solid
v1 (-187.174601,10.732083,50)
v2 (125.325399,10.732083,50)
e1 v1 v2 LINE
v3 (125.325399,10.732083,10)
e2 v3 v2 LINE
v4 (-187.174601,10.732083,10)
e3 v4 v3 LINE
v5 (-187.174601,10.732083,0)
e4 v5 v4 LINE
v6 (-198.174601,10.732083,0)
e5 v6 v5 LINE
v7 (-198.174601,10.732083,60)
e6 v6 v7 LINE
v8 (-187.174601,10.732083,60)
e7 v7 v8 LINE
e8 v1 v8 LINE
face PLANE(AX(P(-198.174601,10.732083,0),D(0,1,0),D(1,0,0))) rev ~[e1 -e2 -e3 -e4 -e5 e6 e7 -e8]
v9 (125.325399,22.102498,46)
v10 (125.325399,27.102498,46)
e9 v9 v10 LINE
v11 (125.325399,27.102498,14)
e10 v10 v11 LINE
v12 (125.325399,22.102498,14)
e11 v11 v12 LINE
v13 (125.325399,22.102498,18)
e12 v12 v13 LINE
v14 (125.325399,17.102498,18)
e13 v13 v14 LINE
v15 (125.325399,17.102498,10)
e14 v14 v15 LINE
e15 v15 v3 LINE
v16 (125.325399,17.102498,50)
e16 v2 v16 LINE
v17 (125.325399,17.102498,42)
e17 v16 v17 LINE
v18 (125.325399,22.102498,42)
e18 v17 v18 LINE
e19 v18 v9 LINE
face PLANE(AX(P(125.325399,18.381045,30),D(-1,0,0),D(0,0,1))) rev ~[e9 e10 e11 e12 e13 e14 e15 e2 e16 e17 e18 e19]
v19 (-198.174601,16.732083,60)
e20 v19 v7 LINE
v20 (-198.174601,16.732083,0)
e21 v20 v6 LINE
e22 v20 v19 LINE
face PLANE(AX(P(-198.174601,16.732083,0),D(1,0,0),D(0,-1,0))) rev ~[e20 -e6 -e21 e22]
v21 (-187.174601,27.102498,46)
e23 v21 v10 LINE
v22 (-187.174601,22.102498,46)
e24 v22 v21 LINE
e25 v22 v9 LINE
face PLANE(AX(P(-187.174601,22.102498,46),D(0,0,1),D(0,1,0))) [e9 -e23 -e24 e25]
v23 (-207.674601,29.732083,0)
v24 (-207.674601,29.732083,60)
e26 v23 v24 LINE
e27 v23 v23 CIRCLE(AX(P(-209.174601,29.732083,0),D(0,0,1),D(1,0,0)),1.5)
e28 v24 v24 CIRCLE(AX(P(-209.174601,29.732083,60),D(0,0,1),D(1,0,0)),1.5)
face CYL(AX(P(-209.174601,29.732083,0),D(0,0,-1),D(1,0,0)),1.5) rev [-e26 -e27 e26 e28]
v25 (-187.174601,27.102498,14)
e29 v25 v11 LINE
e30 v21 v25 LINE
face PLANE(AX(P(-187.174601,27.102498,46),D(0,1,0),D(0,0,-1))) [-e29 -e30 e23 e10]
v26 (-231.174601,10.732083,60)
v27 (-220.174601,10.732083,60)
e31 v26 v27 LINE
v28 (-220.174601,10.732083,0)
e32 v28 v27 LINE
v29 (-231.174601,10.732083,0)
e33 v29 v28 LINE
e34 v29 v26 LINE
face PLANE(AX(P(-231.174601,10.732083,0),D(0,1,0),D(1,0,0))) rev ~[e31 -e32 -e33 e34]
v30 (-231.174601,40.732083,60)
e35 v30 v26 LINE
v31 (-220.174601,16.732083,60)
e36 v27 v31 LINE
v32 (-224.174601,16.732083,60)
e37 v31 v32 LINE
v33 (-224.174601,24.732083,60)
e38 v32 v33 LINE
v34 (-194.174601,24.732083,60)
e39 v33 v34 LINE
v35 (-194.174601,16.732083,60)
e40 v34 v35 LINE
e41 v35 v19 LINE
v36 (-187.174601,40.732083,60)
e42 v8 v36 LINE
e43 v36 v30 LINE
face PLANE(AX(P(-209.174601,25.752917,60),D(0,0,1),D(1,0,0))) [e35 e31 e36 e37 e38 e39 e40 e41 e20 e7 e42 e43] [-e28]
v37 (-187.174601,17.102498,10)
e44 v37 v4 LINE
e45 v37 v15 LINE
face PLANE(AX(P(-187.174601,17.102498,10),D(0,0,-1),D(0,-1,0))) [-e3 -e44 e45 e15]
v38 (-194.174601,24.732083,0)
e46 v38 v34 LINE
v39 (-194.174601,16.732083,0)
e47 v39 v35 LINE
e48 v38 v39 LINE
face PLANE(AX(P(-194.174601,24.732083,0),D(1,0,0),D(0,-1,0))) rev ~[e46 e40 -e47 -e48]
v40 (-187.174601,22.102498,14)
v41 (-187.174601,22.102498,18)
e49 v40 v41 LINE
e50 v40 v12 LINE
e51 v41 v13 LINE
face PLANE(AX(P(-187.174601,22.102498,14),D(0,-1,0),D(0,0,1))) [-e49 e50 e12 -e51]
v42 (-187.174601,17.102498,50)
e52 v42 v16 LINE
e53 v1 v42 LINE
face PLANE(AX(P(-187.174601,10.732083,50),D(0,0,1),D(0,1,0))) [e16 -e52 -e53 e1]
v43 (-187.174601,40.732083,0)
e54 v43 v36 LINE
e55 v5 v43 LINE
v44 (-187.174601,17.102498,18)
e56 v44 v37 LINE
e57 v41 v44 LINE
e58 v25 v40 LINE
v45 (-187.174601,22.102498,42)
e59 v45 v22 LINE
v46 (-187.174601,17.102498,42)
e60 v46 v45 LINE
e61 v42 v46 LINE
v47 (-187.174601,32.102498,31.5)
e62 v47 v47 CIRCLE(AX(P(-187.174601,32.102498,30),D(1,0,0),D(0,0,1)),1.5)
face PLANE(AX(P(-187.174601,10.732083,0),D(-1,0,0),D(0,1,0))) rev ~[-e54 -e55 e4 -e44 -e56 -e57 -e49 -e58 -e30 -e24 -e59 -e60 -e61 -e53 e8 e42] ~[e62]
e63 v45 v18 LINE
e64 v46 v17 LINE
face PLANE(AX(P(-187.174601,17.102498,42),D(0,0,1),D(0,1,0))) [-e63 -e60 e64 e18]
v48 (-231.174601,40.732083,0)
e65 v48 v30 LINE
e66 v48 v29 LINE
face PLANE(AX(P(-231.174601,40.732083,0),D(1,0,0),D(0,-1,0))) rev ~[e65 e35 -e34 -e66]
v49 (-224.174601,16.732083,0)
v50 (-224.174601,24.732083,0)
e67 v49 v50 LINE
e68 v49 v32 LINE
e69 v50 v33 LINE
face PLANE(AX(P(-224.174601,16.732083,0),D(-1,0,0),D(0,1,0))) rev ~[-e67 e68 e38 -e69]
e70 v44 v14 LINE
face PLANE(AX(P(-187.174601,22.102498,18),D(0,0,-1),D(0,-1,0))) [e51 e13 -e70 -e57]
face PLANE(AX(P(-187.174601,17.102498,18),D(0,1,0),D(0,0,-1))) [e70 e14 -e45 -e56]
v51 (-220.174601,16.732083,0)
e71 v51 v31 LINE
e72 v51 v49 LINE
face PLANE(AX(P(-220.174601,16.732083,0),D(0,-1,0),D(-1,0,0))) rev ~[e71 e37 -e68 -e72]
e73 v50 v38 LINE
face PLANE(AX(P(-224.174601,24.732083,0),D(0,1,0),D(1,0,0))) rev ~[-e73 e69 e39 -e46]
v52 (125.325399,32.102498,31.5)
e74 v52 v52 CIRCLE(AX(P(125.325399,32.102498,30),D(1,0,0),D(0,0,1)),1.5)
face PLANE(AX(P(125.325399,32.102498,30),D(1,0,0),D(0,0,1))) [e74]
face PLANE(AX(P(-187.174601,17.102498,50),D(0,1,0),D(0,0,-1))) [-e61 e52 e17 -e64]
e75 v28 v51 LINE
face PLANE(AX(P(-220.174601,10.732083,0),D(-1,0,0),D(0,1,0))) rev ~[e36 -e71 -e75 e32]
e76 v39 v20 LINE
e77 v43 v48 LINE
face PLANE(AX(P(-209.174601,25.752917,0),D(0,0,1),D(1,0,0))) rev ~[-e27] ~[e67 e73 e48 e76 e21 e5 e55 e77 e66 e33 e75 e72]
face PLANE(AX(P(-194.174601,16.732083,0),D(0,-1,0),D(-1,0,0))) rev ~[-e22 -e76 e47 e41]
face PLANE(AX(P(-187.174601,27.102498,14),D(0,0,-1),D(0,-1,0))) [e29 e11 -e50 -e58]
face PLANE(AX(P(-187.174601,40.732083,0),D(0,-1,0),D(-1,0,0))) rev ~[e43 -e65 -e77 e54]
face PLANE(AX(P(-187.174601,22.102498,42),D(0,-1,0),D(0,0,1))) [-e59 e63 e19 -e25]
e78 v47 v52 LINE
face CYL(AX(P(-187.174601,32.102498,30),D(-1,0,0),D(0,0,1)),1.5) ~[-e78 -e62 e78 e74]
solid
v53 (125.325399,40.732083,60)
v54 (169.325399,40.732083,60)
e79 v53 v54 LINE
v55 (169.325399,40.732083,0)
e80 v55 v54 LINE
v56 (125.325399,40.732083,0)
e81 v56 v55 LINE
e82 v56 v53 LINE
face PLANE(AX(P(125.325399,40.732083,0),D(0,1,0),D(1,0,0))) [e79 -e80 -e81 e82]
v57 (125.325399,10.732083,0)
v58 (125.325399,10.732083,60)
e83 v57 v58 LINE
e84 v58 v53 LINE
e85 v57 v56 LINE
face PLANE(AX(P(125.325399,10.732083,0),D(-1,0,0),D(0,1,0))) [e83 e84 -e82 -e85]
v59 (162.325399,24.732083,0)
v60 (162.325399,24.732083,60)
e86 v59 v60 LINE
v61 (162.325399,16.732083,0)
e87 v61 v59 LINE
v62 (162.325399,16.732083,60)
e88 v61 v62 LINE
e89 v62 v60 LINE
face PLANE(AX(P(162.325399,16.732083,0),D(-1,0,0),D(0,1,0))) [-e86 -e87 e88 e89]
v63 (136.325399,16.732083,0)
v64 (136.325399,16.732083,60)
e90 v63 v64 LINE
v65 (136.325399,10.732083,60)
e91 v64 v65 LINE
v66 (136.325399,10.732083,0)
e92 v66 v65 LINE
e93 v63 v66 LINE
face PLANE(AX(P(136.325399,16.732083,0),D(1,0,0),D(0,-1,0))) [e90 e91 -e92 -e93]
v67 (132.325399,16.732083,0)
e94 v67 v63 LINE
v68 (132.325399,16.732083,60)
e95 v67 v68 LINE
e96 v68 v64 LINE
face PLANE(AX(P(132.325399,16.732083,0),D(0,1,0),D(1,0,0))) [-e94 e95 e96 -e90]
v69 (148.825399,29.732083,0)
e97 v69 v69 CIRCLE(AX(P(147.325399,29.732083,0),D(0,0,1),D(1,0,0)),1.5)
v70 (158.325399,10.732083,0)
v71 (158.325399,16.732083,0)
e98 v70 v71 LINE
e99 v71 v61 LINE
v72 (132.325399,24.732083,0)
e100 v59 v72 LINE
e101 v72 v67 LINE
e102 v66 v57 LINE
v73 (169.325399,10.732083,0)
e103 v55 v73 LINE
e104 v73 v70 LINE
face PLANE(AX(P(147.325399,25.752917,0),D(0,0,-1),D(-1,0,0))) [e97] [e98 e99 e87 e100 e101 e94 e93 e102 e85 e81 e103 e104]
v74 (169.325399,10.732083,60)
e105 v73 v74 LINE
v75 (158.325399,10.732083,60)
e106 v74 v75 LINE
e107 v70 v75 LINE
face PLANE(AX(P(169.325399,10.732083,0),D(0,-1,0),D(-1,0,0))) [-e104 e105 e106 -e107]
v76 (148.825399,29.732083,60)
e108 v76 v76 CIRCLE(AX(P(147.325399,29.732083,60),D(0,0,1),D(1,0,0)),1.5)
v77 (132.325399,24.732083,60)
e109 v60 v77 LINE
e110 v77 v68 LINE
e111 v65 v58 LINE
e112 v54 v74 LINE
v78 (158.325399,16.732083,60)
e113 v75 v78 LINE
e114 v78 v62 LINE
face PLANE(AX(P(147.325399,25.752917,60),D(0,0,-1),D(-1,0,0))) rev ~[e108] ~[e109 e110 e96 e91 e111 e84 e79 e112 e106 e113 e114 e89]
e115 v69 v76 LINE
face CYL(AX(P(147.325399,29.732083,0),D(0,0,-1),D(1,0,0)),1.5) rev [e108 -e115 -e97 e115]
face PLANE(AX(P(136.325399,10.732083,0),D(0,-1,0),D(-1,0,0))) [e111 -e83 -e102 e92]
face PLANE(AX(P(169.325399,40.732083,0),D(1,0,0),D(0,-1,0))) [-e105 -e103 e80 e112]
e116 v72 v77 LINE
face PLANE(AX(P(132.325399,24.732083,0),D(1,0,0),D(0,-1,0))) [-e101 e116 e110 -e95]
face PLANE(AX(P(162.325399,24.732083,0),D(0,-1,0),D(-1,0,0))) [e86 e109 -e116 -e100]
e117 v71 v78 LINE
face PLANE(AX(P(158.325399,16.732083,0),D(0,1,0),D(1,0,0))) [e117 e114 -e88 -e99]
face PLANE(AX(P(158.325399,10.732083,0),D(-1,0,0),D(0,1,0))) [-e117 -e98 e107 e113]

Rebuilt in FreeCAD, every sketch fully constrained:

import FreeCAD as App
import Part
import Sketcher


def add_polygon(sketch, points):
    """Adds a closed chain of lines whose ends are joined by coincident constraints."""
    first, n = sketch.GeometryCount, len(points)
    for a, b in zip(points, points[1:] + points[:1]):
        sketch.addGeometry(Part.LineSegment(App.Vector(*a, 0), App.Vector(*b, 0)), False)
    for i in range(n):
        sketch.addConstraint(Sketcher.Constraint("Coincident", first + i, 2, first + (i + 1) % n, 1))

doc = App.newDocument("Part")
params = doc.addObject("Spreadsheet::Sheet", "Params")
for row, (alias, value) in enumerate([
    ("sketch1_diameter", "3 mm"),
    ("sketch1_width", "11 mm"),
    ("sketch1_width2", "4 mm"),
    ("sketch1_width3", "30 mm"),
    ("sketch1_height", "6 mm"),
    ("pad1_length", "60 mm"),
    ("sketch2_diameter", "3 mm"),
    ("sketch2_width", "5 mm"),
    ("sketch2_height", "40 mm"),
    ("sketch2_height2", "8 mm"),
    ("sketch2_height3", "4 mm"),
    ("pad2_length", "312.5 mm"),
    ("sketch3_diameter", "3 mm"),
    ("sketch3_width", "4 mm"),
    ("sketch3_width2", "30 mm"),
    ("sketch3_width3", "11 mm"),
    ("sketch3_height", "6 mm"),
    ("pad3_length", "60 mm"),
], start=1):
    params.set(f"A{row}", alias)
    params.set(f"B{row}", "=" + value)
    params.setAlias(f"B{row}", alias)

body = doc.addObject("PartDesign::Body", "Body")

# Sketch on XY plane
sketch1 = body.newObject("Sketcher::SketchObject", "Sketch")
sketch1.AttachmentSupport = (doc.getObject("XY_Plane"), [""])
sketch1.MapMode = "FlatFace"
add_polygon(sketch1, [(-231.174601, 10.732083), (-220.174601, 10.732083), (-220.174601, 16.732083), (-224.174601, 16.732083), (-224.174601, 24.732083), (-194.174601, 24.732083), (-194.174601, 16.732083), (-198.174601, 16.732083), (-198.174601, 10.732083), (-187.174601, 10.732083), (-187.174601, 40.732083), (-231.174601, 40.732083)])  # lines 0-11
sketch1.addGeometry(Part.Circle(App.Vector(-209.174601, 29.732083, 0), App.Vector(0, 0, 1), 1.5), False)  # 12
sketch1.addConstraint(Sketcher.Constraint("Horizontal", 0))
sketch1.addConstraint(Sketcher.Constraint("Vertical", 1))
sketch1.addConstraint(Sketcher.Constraint("Horizontal", 2))
sketch1.addConstraint(Sketcher.Constraint("Vertical", 3))
sketch1.addConstraint(Sketcher.Constraint("Horizontal", 4))
sketch1.addConstraint(Sketcher.Constraint("Vertical", 5))
sketch1.addConstraint(Sketcher.Constraint("Horizontal", 6))
sketch1.addConstraint(Sketcher.Constraint("Vertical", 7))
sketch1.addConstraint(Sketcher.Constraint("Horizontal", 8))
sketch1.addConstraint(Sketcher.Constraint("Vertical", 9))
sketch1.addConstraint(Sketcher.Constraint("Horizontal", 10))
sketch1.addConstraint(Sketcher.Constraint("Vertical", 11))
sketch1.addConstraint(Sketcher.Constraint("Horizontal", 2, 2, 5, 2))
sketch1.addConstraint(Sketcher.Constraint("Horizontal", 0, 2, 7, 2))
sketch1.addConstraint(Sketcher.Constraint("Equal", 2, 6))
sketch1.addConstraint(Sketcher.Constraint("Equal", 0, 8))
sketch1.addConstraint(Sketcher.Constraint("Equal", 4, 9))
sketch1.addConstraint(Sketcher.Constraint("Diameter", 12, 3.0))
sketch1.addConstraint(Sketcher.Constraint("DistanceX", 0, 1, 0, 2, 11.0))
sketch1.addConstraint(Sketcher.Constraint("DistanceX", 2, 2, 2, 1, 4.0))
sketch1.addConstraint(Sketcher.Constraint("DistanceX", 4, 1, 4, 2, 30.0))
sketch1.addConstraint(Sketcher.Constraint("DistanceY", 1, 1, 1, 2, 6.0))
sketch1.addConstraint(Sketcher.Constraint("DistanceY", 3, 1, 3, 2, 8.0))
sketch1.addConstraint(Sketcher.Constraint("DistanceX", 0, 2, 12, 3, 11.0))
sketch1.addConstraint(Sketcher.Constraint("DistanceY", 0, 2, 12, 3, 19.0))
sketch1.addConstraint(Sketcher.Constraint("DistanceX", 12, 3, -1, 1, 209.174601))
sketch1.addConstraint(Sketcher.Constraint("DistanceY", -1, 1, 12, 3, 29.732083))
sketch1.setExpression("Constraints[29]", "Params.sketch1_diameter")
sketch1.setExpression("Constraints[30]", "Params.sketch1_width")
sketch1.setExpression("Constraints[31]", "Params.sketch1_width2")
sketch1.setExpression("Constraints[32]", "Params.sketch1_width3")
sketch1.setExpression("Constraints[33]", "Params.sketch1_height")
pad1 = body.newObject("PartDesign::Pad", "Pad")
pad1.Profile = sketch1
pad1.setExpression("Length", "Params.pad1_length")

# Sketch on YZ plane
sketch2 = body.newObject("Sketcher::SketchObject", "Sketch001")
sketch2.AttachmentSupport = (doc.getObject("YZ_Plane"), [""])
sketch2.MapMode = "FlatFace"
sketch2.AttachmentOffset = App.Placement(App.Vector(0, 0, -187.174601), App.Rotation())
sketch2.addGeometry(Part.Circle(App.Vector(32.102498, 30, 0), App.Vector(0, 0, 1), 1.5), False)  # 0
add_polygon(sketch2, [(10.732083, 50), (10.732083, 10), (17.102498, 10), (17.102498, 18), (22.102498, 18), (22.102498, 14), (27.102498, 14), (27.102498, 46), (22.102498, 46), (22.102498, 42), (17.102498, 42), (17.102498, 50)])  # lines 1-12
sketch2.addConstraint(Sketcher.Constraint("Vertical", 1))
sketch2.addConstraint(Sketcher.Constraint("Horizontal", 2))
sketch2.addConstraint(Sketcher.Constraint("Vertical", 3))
sketch2.addConstraint(Sketcher.Constraint("Horizontal", 4))
sketch2.addConstraint(Sketcher.Constraint("Vertical", 5))
sketch2.addConstraint(Sketcher.Constraint("Horizontal", 6))
sketch2.addConstraint(Sketcher.Constraint("Vertical", 7))
sketch2.addConstraint(Sketcher.Constraint("Horizontal", 8))
sketch2.addConstraint(Sketcher.Constraint("Vertical", 9))
sketch2.addConstraint(Sketcher.Constraint("Horizontal", 10))
sketch2.addConstraint(Sketcher.Constraint("Vertical", 11))
sketch2.addConstraint(Sketcher.Constraint("Horizontal", 12))
sketch2.addConstraint(Sketcher.Constraint("Vertical", 5, 2, 8, 2))
sketch2.addConstraint(Sketcher.Constraint("Vertical", 3, 2, 10, 2))
sketch2.addConstraint(Sketcher.Constraint("Equal", 4, 6))
sketch2.addConstraint(Sketcher.Constraint("Equal", 5, 9))
sketch2.addConstraint(Sketcher.Constraint("Equal", 3, 11))
sketch2.addConstraint(Sketcher.Constraint("Diameter", 0, 3.0))
sketch2.addConstraint(Sketcher.Constraint("DistanceX", 4, 1, 4, 2, 5.0))
sketch2.addConstraint(Sketcher.Constraint("DistanceY", 1, 2, 1, 1, 40.0))
sketch2.addConstraint(Sketcher.Constraint("DistanceY", 3, 1, 3, 2, 8.0))
sketch2.addConstraint(Sketcher.Constraint("DistanceY", 5, 2, 5, 1, 4.0))
sketch2.addConstraint(Sketcher.Constraint("DistanceY", -1, 1, 0, 3, 30.0))
sketch2.addConstraint(Sketcher.Constraint("DistanceY", -1, 1, 1, 2, 10.0))
sketch2.addConstraint(Sketcher.Constraint("DistanceX", 2, 2, 0, 3, 15.0))
sketch2.addConstraint(Sketcher.Constraint("DistanceX", -1, 1, 0, 3, 32.102498))
sketch2.addConstraint(Sketcher.Constraint("DistanceX", 2, 1, 2, 2, 6.370415))
sketch2.setExpression("Constraints[29]", "Params.sketch2_diameter")
sketch2.setExpression("Constraints[30]", "Params.sketch2_width")
sketch2.setExpression("Constraints[31]", "Params.sketch2_height")
sketch2.setExpression("Constraints[32]", "Params.sketch2_height2")
sketch2.setExpression("Constraints[33]", "Params.sketch2_height3")
pad2 = body.newObject("PartDesign::Pad", "Pad001")
pad2.Profile = sketch2
pad2.setExpression("Length", "Params.pad2_length")
body2 = doc.addObject("PartDesign::Body", "Body001")

# Sketch on XY plane
sketch3 = body2.newObject("Sketcher::SketchObject", "Sketch002")
sketch3.AttachmentSupport = (doc.getObject("XY_Plane001"), [""])
sketch3.MapMode = "FlatFace"
add_polygon(sketch3, [(136.325399, 10.732083), (136.325399, 16.732083), (132.325399, 16.732083), (132.325399, 24.732083), (162.325399, 24.732083), (162.325399, 16.732083), (158.325399, 16.732083), (158.325399, 10.732083), (169.325399, 10.732083), (169.325399, 40.732083), (125.325399, 40.732083), (125.325399, 10.732083)])  # lines 0-11
sketch3.addGeometry(Part.Circle(App.Vector(147.325399, 29.732083, 0), App.Vector(0, 0, 1), 1.5), False)  # 12
sketch3.addConstraint(Sketcher.Constraint("Vertical", 0))
sketch3.addConstraint(Sketcher.Constraint("Horizontal", 1))
sketch3.addConstraint(Sketcher.Constraint("Vertical", 2))
sketch3.addConstraint(Sketcher.Constraint("Horizontal", 3))
sketch3.addConstraint(Sketcher.Constraint("Vertical", 4))
sketch3.addConstraint(Sketcher.Constraint("Horizontal", 5))
sketch3.addConstraint(Sketcher.Constraint("Vertical", 6))
sketch3.addConstraint(Sketcher.Constraint("Horizontal", 7))
sketch3.addConstraint(Sketcher.Constraint("Vertical", 8))
sketch3.addConstraint(Sketcher.Constraint("Horizontal", 9))
sketch3.addConstraint(Sketcher.Constraint("Vertical", 10))
sketch3.addConstraint(Sketcher.Constraint("Horizontal", 11))
sketch3.addConstraint(Sketcher.Constraint("Horizontal", 1, 2, 4, 2))
sketch3.addConstraint(Sketcher.Constraint("Horizontal", 7, 2, 10, 2))
sketch3.addConstraint(Sketcher.Constraint("Equal", 1, 5))
sketch3.addConstraint(Sketcher.Constraint("Equal", 7, 11))
sketch3.addConstraint(Sketcher.Constraint("Equal", 3, 8))
sketch3.addConstraint(Sketcher.Constraint("Diameter", 12, 3.0))
sketch3.addConstraint(Sketcher.Constraint("DistanceX", 1, 2, 1, 1, 4.0))
sketch3.addConstraint(Sketcher.Constraint("DistanceX", 3, 1, 3, 2, 30.0))
sketch3.addConstraint(Sketcher.Constraint("DistanceX", 7, 1, 7, 2, 11.0))
sketch3.addConstraint(Sketcher.Constraint("DistanceY", 0, 1, 0, 2, 6.0))
sketch3.addConstraint(Sketcher.Constraint("DistanceY", 2, 1, 2, 2, 8.0))
sketch3.addConstraint(Sketcher.Constraint("DistanceX", 0, 2, 12, 3, 11.0))
sketch3.addConstraint(Sketcher.Constraint("DistanceY", 0, 2, 12, 3, 13.0))
sketch3.addConstraint(Sketcher.Constraint("DistanceX", -1, 1, 12, 3, 147.325399))
sketch3.addConstraint(Sketcher.Constraint("DistanceY", -1, 1, 12, 3, 29.732083))
sketch3.setExpression("Constraints[29]", "Params.sketch3_diameter")
sketch3.setExpression("Constraints[30]", "Params.sketch3_width")
sketch3.setExpression("Constraints[31]", "Params.sketch3_width2")
sketch3.setExpression("Constraints[32]", "Params.sketch3_width3")
sketch3.setExpression("Constraints[33]", "Params.sketch3_height")
pad3 = body2.newObject("PartDesign::Pad", "Pad002")
pad3.Profile = sketch3
pad3.setExpression("Length", "Params.pad3_length")

doc.recompute()
